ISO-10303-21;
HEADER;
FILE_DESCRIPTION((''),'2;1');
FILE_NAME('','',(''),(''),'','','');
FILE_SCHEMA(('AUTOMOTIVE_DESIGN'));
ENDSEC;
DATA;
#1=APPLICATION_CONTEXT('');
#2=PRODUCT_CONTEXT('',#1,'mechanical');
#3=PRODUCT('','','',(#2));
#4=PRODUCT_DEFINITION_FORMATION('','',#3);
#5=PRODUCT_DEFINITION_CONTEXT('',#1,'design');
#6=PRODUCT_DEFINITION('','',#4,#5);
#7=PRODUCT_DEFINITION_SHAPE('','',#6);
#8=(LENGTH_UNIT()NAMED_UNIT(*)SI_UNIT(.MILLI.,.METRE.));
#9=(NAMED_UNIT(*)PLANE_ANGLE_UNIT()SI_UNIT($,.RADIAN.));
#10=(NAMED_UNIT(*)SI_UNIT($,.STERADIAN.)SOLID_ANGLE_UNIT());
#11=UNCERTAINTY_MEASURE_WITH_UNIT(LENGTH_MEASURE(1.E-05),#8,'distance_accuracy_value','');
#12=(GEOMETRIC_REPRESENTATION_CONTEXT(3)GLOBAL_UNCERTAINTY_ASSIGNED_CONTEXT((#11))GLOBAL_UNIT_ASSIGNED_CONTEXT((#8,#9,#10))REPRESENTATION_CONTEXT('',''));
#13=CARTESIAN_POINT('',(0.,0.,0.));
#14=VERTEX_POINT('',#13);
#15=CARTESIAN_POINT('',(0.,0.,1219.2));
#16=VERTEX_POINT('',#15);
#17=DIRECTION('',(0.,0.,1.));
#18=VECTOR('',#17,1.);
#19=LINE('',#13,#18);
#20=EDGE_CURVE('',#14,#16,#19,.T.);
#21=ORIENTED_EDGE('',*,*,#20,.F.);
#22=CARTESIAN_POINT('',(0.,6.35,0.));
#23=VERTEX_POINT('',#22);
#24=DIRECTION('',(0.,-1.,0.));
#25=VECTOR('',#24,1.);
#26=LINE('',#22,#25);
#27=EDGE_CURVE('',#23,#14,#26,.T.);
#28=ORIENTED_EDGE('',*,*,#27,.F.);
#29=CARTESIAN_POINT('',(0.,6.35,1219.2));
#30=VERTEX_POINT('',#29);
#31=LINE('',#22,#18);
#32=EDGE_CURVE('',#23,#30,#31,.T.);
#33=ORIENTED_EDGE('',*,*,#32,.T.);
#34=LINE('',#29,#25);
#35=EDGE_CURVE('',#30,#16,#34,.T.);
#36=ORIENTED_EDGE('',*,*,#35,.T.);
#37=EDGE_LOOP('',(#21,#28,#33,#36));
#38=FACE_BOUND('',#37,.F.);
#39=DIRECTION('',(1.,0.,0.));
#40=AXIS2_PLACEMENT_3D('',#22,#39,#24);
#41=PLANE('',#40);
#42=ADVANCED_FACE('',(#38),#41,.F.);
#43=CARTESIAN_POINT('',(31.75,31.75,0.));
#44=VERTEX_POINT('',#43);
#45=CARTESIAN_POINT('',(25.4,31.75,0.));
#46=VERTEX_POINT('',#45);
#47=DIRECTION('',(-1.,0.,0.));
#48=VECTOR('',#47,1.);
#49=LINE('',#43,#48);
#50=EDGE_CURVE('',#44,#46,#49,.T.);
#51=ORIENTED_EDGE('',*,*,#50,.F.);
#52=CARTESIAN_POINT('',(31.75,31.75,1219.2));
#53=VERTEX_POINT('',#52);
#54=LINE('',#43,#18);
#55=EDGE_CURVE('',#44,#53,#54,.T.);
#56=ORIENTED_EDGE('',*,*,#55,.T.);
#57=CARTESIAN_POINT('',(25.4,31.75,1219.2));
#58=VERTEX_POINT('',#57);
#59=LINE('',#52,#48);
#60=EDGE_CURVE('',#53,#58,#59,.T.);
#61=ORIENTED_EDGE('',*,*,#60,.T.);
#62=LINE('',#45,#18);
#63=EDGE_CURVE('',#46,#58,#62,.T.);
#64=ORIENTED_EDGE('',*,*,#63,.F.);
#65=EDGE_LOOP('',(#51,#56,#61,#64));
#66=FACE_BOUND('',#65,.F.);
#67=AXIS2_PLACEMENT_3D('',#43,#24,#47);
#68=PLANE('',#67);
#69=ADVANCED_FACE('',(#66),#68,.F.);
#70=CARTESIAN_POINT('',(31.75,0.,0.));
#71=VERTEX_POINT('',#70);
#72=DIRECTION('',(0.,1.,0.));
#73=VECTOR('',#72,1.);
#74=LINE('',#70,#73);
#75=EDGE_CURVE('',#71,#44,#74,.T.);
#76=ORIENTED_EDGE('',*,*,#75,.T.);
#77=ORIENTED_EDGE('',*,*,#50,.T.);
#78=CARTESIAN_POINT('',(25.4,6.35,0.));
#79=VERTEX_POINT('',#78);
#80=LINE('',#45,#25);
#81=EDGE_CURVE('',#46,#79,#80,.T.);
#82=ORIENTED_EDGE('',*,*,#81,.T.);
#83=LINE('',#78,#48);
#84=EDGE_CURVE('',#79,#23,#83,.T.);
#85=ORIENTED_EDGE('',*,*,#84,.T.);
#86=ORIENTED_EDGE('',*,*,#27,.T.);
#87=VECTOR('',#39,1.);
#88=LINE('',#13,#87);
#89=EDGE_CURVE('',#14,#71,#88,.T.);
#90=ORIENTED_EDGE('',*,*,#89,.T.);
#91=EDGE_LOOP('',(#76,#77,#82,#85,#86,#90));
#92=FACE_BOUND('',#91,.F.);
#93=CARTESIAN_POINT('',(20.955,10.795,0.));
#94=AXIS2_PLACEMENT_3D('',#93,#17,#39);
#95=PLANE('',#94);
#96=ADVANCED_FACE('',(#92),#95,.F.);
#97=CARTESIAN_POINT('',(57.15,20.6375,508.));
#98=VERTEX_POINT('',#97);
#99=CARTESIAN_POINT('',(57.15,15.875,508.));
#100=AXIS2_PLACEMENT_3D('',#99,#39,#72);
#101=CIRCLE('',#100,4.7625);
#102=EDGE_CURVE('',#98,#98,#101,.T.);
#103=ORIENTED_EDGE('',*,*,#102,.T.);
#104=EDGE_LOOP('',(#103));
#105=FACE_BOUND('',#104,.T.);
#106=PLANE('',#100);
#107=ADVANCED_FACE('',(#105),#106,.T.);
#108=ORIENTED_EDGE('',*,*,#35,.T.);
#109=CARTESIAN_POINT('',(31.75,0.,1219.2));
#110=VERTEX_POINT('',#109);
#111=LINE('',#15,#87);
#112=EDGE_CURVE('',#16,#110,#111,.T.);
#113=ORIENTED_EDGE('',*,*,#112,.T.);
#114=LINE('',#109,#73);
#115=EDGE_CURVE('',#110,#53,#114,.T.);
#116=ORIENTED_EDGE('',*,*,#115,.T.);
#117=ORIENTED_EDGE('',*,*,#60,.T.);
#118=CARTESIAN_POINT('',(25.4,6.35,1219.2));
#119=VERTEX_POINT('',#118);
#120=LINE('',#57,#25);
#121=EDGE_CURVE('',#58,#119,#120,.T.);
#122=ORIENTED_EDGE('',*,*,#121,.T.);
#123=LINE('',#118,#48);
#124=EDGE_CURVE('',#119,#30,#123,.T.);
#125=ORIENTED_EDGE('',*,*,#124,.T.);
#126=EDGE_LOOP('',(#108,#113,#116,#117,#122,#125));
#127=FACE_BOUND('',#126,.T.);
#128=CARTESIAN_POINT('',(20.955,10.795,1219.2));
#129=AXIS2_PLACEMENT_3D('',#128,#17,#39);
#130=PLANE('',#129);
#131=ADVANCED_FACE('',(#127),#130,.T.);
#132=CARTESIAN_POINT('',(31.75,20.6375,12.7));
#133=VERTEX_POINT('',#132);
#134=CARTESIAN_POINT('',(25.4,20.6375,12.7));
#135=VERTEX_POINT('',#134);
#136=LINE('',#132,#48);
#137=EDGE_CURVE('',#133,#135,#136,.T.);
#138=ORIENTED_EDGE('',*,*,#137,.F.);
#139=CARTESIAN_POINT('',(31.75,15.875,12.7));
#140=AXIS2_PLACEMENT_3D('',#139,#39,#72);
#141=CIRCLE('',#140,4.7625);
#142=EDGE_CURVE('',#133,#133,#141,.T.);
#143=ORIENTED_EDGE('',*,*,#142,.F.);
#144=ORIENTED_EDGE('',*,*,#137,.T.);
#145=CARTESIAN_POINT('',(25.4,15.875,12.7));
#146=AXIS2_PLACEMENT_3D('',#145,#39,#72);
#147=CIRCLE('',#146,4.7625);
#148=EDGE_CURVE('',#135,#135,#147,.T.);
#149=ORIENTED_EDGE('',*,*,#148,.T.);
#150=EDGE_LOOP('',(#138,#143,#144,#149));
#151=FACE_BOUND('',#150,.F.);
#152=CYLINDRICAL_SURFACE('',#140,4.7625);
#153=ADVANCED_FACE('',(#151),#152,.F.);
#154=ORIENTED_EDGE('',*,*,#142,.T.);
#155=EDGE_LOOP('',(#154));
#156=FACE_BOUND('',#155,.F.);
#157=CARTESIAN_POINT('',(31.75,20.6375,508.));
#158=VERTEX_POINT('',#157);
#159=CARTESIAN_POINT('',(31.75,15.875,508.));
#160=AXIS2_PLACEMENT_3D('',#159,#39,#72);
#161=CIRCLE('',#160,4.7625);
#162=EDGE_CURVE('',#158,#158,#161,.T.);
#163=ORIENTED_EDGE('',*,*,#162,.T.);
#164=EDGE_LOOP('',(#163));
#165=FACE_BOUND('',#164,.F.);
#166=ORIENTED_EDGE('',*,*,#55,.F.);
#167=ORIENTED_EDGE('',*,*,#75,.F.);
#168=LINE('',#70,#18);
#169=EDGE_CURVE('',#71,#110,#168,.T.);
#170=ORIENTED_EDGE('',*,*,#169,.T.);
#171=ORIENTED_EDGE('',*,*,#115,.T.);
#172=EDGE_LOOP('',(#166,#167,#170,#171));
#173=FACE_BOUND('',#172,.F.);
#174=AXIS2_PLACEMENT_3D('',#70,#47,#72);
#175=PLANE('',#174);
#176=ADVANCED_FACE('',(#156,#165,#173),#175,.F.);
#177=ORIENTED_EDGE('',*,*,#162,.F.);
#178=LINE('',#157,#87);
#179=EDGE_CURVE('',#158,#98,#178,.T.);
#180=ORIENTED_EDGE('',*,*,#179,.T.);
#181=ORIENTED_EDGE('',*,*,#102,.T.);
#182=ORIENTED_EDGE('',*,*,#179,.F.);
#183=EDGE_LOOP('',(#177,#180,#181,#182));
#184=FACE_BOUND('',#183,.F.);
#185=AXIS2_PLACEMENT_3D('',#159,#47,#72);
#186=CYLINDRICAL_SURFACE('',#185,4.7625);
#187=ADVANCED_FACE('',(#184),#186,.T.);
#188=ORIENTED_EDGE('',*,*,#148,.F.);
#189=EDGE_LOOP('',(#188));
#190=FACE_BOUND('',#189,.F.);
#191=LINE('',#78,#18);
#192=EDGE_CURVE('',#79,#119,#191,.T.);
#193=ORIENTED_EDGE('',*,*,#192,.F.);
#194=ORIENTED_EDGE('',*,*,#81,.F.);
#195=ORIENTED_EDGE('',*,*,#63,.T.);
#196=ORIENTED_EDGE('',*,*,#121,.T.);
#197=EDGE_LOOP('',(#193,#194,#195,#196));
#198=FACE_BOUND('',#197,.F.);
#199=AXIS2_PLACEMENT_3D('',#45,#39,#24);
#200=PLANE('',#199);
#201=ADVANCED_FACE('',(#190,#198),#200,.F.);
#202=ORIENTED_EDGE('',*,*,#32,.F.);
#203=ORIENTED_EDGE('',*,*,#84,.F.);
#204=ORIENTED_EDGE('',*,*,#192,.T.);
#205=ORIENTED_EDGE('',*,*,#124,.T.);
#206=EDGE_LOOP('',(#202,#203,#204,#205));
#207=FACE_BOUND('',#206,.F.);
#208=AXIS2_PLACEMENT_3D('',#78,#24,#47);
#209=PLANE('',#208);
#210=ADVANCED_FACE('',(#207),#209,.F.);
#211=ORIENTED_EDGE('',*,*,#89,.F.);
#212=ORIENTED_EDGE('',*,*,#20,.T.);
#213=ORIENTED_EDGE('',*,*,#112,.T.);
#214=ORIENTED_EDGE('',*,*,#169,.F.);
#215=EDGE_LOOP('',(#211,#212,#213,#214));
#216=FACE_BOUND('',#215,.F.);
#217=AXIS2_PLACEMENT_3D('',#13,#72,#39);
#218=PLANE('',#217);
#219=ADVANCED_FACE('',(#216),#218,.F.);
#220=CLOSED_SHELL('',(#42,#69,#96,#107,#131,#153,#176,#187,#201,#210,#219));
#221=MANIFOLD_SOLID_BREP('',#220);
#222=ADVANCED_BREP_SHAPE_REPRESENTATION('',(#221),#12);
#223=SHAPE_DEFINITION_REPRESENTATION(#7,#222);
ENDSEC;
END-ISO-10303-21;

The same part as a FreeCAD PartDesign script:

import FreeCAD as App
import Part
import Sketcher
Q = App.Units.Quantity

doc = App.newDocument("Part")
body = doc.addObject("PartDesign::Body", "Body")

# Sketch on XY plane
sketch1 = body.newObject("Sketcher::SketchObject", "Sketch")
sketch1.AttachmentSupport = (doc.getObject("XY_Plane"), [""])
sketch1.MapMode = "FlatFace"
sketch1.addGeometry([
    Part.LineSegment(App.Vector(0, 6.35, 0), App.Vector(0, 0, 0)),  # 0
    Part.LineSegment(App.Vector(0, 0, 0), App.Vector(31.75, 0, 0)),  # 1
    Part.LineSegment(App.Vector(31.75, 0, 0), App.Vector(31.75, 31.75, 0)),  # 2
    Part.LineSegment(App.Vector(31.75, 31.75, 0), App.Vector(25.4, 31.75, 0)),  # 3
    Part.LineSegment(App.Vector(25.4, 31.75, 0), App.Vector(25.4, 6.35, 0)),  # 4
    Part.LineSegment(App.Vector(25.4, 6.35, 0), App.Vector(0, 6.35, 0)),  # 5
], False)
sketch1.addConstraint([
    Sketcher.Constraint("Coincident", 0, 2, 1, 1),
    Sketcher.Constraint("Coincident", 1, 2, 2, 1),
    Sketcher.Constraint("Coincident", 2, 2, 3, 1),
    Sketcher.Constraint("Coincident", 3, 2, 4, 1),
    Sketcher.Constraint("Coincident", 4, 2, 5, 1),
    Sketcher.Constraint("Coincident", 5, 2, 0, 1),
    Sketcher.Constraint("Vertical", 0),
    Sketcher.Constraint("Horizontal", 1),
    Sketcher.Constraint("Vertical", 2),
    Sketcher.Constraint("Horizontal", 3),
    Sketcher.Constraint("Vertical", 4),
    Sketcher.Constraint("Horizontal", 5),
    Sketcher.Constraint("Coincident", 0, 2, -1, 1),
    Sketcher.Constraint("Equal", 3, 0),
    Sketcher.Constraint("Equal", 1, 2),
    Sketcher.Constraint("DistanceX", 5, 2, 5, 1, Q("1 in")),
    Sketcher.Constraint("DistanceX", 1, 1, 1, 2, Q("1.25 in")),
])
pad1 = body.newObject("PartDesign::Pad", "Pad")
pad1.Profile = sketch1
pad1.Length = Q("48 in")

# Sketch on YZ plane
sketch2 = body.newObject("Sketcher::SketchObject", "Sketch001")
sketch2.AttachmentSupport = (doc.getObject("YZ_Plane"), [""])
sketch2.MapMode = "FlatFace"
sketch2.AttachmentOffset = App.Placement(App.Vector(0, 0, 1.25 * 25.4), App.Rotation())
sketch2.addGeometry(Part.Circle(App.Vector(15.875, 12.7, 0), App.Vector(0, 0, 1), 4.7625), False)
sketch2.addConstraint([
    Sketcher.Constraint("Diameter", 0, Q("0.375 in")),
    Sketcher.Constraint("DistanceY", -1, 1, 0, 3, Q("0.5 in")),
    Sketcher.Constraint("DistanceX", -1, 1, 0, 3, Q("0.625 in")),
])
pocket1 = body.newObject("PartDesign::Pocket", "Pocket")
pocket1.Profile = sketch2
pocket1.Type = "ThroughAll"

# Sketch on YZ plane
sketch3 = body.newObject("Sketcher::SketchObject", "Sketch002")
sketch3.AttachmentSupport = (doc.getObject("YZ_Plane"), [""])
sketch3.MapMode = "FlatFace"
sketch3.AttachmentOffset = App.Placement(App.Vector(0, 0, 1.25 * 25.4), App.Rotation())
sketch3.addGeometry(Part.Circle(App.Vector(15.875, 508, 0), App.Vector(0, 0, 1), 4.7625), False)
sketch3.addConstraint([
    Sketcher.Constraint("Diameter", 0, Q("0.375 in")),
    Sketcher.Constraint("DistanceY", -1, 1, 0, 3, Q("20 in")),
    Sketcher.Constraint("DistanceX", -1, 1, 0, 3, Q("0.625 in")),
])
pad2 = body.newObject("PartDesign::Pad", "Pad001")
pad2.Profile = sketch3
pad2.Length = Q("1 in")

doc.recompute()
